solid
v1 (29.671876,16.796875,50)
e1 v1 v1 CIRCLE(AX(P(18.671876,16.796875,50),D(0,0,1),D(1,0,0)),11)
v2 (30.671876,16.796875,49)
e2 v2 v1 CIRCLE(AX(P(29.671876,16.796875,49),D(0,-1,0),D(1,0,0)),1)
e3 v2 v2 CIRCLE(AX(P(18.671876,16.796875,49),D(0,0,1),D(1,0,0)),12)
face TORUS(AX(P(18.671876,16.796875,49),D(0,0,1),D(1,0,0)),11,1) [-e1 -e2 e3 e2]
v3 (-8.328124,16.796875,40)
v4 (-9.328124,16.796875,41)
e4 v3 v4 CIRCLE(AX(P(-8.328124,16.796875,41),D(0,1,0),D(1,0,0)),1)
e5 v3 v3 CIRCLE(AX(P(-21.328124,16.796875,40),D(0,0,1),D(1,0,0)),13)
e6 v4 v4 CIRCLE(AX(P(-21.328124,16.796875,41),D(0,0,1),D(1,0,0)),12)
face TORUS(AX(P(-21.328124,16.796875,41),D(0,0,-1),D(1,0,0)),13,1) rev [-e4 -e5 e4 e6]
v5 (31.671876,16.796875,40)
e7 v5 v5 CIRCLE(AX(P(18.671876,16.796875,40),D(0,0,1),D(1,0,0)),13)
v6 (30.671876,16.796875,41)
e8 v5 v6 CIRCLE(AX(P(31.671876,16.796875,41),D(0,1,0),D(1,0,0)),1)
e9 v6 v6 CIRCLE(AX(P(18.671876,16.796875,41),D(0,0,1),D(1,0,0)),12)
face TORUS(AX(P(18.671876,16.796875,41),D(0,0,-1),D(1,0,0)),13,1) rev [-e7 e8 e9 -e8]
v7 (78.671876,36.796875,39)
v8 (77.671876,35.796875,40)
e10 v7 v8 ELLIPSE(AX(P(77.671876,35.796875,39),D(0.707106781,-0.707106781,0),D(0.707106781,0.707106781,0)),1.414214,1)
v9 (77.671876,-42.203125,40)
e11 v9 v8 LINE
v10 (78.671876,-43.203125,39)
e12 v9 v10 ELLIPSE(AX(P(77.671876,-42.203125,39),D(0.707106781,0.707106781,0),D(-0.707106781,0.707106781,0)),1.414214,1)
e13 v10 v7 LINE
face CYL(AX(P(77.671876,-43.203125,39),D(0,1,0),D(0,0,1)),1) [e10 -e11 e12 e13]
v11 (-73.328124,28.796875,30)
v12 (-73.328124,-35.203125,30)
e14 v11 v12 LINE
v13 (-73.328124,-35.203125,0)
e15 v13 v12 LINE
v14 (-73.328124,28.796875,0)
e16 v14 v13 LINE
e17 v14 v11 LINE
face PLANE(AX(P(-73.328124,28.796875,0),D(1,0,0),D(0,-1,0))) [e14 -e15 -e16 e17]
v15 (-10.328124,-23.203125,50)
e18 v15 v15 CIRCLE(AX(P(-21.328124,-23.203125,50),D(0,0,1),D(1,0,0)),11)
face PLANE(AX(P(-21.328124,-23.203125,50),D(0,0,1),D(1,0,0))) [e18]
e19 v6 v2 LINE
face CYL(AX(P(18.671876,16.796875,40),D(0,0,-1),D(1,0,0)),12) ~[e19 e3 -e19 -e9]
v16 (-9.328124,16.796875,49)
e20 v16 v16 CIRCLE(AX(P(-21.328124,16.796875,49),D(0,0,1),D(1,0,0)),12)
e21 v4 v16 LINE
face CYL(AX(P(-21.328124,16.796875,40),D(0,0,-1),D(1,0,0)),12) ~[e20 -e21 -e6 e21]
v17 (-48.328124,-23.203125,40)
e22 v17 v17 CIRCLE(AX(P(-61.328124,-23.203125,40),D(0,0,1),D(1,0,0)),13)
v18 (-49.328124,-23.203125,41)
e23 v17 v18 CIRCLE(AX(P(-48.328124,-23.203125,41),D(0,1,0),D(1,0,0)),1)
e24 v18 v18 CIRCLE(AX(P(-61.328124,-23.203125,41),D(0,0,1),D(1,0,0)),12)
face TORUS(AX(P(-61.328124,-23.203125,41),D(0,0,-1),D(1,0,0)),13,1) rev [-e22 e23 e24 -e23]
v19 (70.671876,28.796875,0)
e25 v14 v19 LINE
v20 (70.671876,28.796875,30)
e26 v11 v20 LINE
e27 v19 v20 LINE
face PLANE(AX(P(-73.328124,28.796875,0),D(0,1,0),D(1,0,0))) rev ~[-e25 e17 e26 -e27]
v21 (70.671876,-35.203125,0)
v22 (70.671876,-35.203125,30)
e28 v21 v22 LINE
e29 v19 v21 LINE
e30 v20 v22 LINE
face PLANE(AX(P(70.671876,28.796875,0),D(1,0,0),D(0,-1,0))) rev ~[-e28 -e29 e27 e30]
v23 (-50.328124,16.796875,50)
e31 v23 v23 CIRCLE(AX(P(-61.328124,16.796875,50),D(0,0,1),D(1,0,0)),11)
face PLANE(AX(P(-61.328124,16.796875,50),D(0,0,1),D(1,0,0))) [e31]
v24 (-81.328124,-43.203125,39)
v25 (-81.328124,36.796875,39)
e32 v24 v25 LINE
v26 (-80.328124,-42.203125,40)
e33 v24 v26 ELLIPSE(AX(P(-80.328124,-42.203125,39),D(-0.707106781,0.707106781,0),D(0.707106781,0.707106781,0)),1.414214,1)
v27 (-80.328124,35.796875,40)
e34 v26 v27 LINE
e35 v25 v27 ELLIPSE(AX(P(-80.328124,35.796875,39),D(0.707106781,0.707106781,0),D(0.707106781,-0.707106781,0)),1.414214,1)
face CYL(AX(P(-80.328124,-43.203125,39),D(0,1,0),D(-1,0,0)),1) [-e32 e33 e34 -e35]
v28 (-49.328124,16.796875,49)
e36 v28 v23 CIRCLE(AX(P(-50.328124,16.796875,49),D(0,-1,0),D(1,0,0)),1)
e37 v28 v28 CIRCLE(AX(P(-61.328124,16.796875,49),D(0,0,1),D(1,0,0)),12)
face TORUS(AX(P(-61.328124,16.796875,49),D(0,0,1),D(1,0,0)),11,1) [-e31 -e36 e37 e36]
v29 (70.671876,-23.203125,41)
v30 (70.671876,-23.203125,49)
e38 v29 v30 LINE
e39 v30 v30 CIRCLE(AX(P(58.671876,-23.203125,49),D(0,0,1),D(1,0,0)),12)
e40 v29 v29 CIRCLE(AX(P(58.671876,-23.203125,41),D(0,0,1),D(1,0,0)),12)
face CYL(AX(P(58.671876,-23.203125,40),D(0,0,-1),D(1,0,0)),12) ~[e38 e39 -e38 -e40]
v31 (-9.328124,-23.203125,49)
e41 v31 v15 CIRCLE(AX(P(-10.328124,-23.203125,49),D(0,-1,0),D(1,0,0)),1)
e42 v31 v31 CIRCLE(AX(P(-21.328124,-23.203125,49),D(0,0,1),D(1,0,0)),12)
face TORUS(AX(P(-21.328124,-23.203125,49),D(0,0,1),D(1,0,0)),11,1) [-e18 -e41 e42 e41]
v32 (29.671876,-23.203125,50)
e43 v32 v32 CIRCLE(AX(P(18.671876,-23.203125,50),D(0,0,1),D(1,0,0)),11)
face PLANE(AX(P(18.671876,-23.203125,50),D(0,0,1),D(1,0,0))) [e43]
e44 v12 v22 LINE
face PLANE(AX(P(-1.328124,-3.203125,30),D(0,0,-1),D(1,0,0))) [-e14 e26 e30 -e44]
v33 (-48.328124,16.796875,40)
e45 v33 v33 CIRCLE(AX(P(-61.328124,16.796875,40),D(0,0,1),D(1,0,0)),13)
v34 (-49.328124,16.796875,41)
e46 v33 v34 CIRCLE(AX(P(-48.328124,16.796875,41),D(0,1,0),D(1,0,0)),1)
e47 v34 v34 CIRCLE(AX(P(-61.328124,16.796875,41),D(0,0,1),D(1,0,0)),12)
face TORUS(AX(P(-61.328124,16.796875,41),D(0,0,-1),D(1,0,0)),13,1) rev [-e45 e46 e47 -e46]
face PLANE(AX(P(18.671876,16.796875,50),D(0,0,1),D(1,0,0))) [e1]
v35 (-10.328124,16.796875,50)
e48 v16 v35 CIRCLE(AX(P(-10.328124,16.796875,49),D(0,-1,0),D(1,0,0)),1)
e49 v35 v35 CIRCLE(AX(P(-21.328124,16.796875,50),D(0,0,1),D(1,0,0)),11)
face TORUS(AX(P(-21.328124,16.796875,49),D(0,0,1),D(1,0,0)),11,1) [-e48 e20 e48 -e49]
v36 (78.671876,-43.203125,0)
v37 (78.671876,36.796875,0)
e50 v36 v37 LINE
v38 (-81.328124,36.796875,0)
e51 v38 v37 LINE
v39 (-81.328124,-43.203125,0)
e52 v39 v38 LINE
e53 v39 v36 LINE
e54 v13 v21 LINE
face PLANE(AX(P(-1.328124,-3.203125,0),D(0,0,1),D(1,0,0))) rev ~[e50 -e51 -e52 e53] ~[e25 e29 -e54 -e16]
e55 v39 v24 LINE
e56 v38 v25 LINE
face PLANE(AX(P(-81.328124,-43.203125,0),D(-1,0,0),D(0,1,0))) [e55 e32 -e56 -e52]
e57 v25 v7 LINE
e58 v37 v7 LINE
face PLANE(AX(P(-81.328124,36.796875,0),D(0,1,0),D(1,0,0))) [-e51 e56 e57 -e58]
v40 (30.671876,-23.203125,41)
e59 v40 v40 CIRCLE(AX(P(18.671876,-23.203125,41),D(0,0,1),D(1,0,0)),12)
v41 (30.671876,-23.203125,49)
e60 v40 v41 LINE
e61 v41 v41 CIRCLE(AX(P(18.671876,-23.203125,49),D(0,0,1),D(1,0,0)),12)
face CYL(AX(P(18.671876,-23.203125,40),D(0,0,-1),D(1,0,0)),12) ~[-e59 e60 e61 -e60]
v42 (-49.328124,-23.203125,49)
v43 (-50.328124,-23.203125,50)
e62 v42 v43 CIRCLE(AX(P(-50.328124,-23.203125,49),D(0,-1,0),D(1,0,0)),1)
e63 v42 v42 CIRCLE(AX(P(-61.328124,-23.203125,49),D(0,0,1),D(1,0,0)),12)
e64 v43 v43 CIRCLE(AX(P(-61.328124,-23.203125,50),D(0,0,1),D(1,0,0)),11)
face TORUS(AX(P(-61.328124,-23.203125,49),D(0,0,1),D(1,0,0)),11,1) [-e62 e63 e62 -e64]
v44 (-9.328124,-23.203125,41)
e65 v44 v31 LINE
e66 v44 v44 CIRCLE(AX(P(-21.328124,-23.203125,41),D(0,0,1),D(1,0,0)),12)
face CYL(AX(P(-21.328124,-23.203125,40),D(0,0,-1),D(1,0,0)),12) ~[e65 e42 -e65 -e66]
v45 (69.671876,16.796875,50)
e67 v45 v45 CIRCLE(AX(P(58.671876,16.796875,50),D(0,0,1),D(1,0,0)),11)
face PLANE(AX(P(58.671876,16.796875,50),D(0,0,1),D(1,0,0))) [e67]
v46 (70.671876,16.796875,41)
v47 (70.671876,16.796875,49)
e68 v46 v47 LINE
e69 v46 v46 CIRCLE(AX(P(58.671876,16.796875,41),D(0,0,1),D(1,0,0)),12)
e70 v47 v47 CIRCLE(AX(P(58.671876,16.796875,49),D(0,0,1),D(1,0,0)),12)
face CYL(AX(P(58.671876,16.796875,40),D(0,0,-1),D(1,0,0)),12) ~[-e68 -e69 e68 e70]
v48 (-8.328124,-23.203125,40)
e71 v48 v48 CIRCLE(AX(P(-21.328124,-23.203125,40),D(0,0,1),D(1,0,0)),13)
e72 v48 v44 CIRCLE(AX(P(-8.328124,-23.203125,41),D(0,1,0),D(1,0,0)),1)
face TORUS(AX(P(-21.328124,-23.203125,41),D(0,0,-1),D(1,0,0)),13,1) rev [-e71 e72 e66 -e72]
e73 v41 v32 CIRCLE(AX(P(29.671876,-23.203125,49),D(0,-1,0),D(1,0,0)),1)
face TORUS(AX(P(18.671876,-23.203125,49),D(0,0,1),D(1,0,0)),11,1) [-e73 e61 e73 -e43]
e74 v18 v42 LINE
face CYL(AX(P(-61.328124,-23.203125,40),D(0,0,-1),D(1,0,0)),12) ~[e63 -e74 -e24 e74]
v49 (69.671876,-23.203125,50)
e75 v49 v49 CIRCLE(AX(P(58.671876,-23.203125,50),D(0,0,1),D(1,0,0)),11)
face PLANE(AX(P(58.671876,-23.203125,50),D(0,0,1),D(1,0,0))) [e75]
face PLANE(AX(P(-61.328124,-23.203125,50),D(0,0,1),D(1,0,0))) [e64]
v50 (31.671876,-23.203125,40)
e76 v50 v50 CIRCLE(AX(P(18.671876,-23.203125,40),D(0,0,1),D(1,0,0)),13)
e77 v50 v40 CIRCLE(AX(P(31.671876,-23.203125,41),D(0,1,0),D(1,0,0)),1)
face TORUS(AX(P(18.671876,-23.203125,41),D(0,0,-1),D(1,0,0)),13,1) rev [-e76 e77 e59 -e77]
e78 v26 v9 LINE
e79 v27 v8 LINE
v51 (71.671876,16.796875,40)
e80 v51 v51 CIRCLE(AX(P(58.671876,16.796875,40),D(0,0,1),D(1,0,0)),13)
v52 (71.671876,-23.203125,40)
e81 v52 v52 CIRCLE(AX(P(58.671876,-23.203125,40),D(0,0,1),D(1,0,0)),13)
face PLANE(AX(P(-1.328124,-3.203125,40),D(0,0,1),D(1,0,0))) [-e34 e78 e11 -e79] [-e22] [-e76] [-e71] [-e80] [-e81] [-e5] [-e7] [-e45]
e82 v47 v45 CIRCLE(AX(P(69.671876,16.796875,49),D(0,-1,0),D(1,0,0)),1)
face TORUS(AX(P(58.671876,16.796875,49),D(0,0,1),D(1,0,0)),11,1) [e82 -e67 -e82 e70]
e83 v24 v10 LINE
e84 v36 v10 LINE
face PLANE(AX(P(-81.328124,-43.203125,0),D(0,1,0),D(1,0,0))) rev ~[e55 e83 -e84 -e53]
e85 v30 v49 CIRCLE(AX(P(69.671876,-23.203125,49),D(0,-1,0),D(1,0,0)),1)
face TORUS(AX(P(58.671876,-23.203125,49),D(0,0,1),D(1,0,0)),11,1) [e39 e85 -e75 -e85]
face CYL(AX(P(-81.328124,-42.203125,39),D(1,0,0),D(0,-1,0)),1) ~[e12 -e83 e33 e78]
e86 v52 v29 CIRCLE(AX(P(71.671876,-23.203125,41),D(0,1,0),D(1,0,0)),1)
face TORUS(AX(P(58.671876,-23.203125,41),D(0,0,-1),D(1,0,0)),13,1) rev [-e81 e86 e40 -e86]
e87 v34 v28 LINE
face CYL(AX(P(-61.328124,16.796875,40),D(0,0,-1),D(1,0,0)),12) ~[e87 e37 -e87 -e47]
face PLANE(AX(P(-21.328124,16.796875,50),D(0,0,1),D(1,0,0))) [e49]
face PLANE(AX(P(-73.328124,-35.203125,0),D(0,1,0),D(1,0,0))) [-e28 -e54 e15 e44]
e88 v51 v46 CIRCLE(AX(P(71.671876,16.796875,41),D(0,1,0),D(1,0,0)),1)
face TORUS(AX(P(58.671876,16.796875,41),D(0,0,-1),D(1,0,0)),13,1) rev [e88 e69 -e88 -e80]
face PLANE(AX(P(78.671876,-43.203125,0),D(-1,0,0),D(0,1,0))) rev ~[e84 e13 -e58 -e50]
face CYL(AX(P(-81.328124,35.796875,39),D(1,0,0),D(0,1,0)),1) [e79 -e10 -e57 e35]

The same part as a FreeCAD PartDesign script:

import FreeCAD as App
import Part
import Sketcher

V = App.Vector
Q = App.Units.Quantity


def edges_at(feature, points):
    """Names of the edges that pass closest to the given points."""
    edges = feature.Shape.Edges
    near = lambda p: min(range(len(edges)), key=lambda i: edges[i].distToShape(Part.Vertex(*p))[0])
    return sorted({f"Edge{near(p) + 1}" for p in points})

doc = App.newDocument("Part")
body = doc.addObject("PartDesign::Body", "Body")

# Sketch on XY plane
sketch1 = body.newObject("Sketcher::SketchObject", "Sketch")
sketch1.AttachmentSupport = (doc.getObject("XY_Plane"), [""])
sketch1.MapMode = "FlatFace"
sketch1.addGeometry([
    Part.LineSegment(V(-81, 37, 0), V(-81, -43, 0)),
    Part.LineSegment(V(-81, -43, 0), V(79, -43, 0)),
    Part.LineSegment(V(79, -43, 0), V(79, 37, 0)),
    Part.LineSegment(V(79, 37, 0), V(-81, 37, 0)),
], False)
sketch1.addConstraint([
    Sketcher.Constraint("Coincident", 0, 2, 1, 1),
    Sketcher.Constraint("Coincident", 1, 2, 2, 1),
    Sketcher.Constraint("Coincident", 2, 2, 3, 1),
    Sketcher.Constraint("Coincident", 3, 2, 0, 1),
    Sketcher.Constraint("Vertical", 0),
    Sketcher.Constraint("Horizontal", 1),
    Sketcher.Constraint("Vertical", 2),
    Sketcher.Constraint("Horizontal", 3),
    Sketcher.Constraint("DistanceX", 1, 1, 1, 2, Q("160 mm")),
    Sketcher.Constraint("DistanceY", 0, 2, 0, 1, Q("80 mm")),
    Sketcher.Constraint("DistanceX", 0, 2, -1, 1, Q("81.328124 mm")),
    Sketcher.Constraint("DistanceY", 0, 2, -1, 1, Q("43.203125 mm")),
])
pad1 = body.newObject("PartDesign::Pad", "Pad")
pad1.Profile = sketch1
pad1.Length = 40

# Sketch on XY plane
sketch2 = body.newObject("Sketcher::SketchObject", "Sketch001")
sketch2.AttachmentSupport = (doc.getObject("XY_Plane"), [""])
sketch2.MapMode = "FlatFace"
sketch2.addGeometry([
    Part.LineSegment(V(-73, -35, 0), V(-73, 29, 0)),
    Part.LineSegment(V(-73, 29, 0), V(71, 29, 0)),
    Part.LineSegment(V(71, 29, 0), V(71, -35, 0)),
    Part.LineSegment(V(71, -35, 0), V(-73, -35, 0)),
], False)
sketch2.addConstraint([
    Sketcher.Constraint("Coincident", 0, 2, 1, 1),
    Sketcher.Constraint("Coincident", 1, 2, 2, 1),
    Sketcher.Constraint("Coincident", 2, 2, 3, 1),
    Sketcher.Constraint("Coincident", 3, 2, 0, 1),
    Sketcher.Constraint("Vertical", 0),
    Sketcher.Constraint("Horizontal", 1),
    Sketcher.Constraint("Vertical", 2),
    Sketcher.Constraint("Horizontal", 3),
    Sketcher.Constraint("DistanceX", 1, 1, 1, 2, Q("144 mm")),
    Sketcher.Constraint("DistanceY", 0, 1, 0, 2, Q("64 mm")),
    Sketcher.Constraint("DistanceX", 0, 2, -1, 1, Q("73.328124 mm")),
    Sketcher.Constraint("DistanceY", -1, 1, 0, 2, Q("28.796875 mm")),
])
pocket1 = body.newObject("PartDesign::Pocket", "Pocket")
pocket1.Profile = sketch2
pocket1.Length = 30
pocket1.Reversed = True

# Sketch on XY plane
sketch3 = body.newObject("Sketcher::SketchObject", "Sketch002")
sketch3.AttachmentSupport = (doc.getObject("XY_Plane"), [""])
sketch3.MapMode = "FlatFace"
sketch3.AttachmentOffset = App.Placement(V(0, 0, 40), App.Rotation())
sketch3.addGeometry([
    Part.Circle(V(-61, 17, 0), V(0, 0, 1), 12),  # 0
    Part.Circle(V(-61, -23, 0), V(0, 0, 1), 12),  # 1
    Part.Circle(V(-21, 17, 0), V(0, 0, 1), 12),  # 2
    Part.Circle(V(-21, -23, 0), V(0, 0, 1), 12),  # 3
    Part.Circle(V(19, 17, 0), V(0, 0, 1), 12),  # 4
    Part.Circle(V(19, -23, 0), V(0, 0, 1), 12),  # 5
    Part.Circle(V(59, 17, 0), V(0, 0, 1), 12),  # 6
    Part.Circle(V(59, -23, 0), V(0, 0, 1), 12),  # 7
], False)
sketch3.addConstraint([
    Sketcher.Constraint("Equal", 0, 1),
    Sketcher.Constraint("Equal", 1, 2),
    Sketcher.Constraint("Equal", 2, 3),
    Sketcher.Constraint("Equal", 3, 4),
    Sketcher.Constraint("Equal", 4, 5),
    Sketcher.Constraint("Equal", 5, 6),
    Sketcher.Constraint("Equal", 6, 7),
    Sketcher.Constraint("Horizontal", 0, 3, 2, 3),
    Sketcher.Constraint("Horizontal", 1, 3, 3, 3),
    Sketcher.Constraint("Horizontal", 2, 3, 4, 3),
    Sketcher.Constraint("Horizontal", 3, 3, 5, 3),
    Sketcher.Constraint("Horizontal", 4, 3, 6, 3),
    Sketcher.Constraint("Horizontal", 5, 3, 7, 3),
    Sketcher.Constraint("Vertical", 0, 3, 1, 3),
    Sketcher.Constraint("Vertical", 2, 3, 3, 3),
    Sketcher.Constraint("Vertical", 4, 3, 5, 3),
    Sketcher.Constraint("Vertical", 6, 3, 7, 3),
    Sketcher.Constraint("Diameter", 0, Q("24 mm")),
    Sketcher.Constraint("DistanceY", 1, 3, 0, 3, Q("40 mm")),
    Sketcher.Constraint("DistanceX", 0, 3, 2, 3, Q("40 mm")),
    Sketcher.Constraint("DistanceX", 2, 3, 4, 3, Q("40 mm")),
    Sketcher.Constraint("DistanceX", 4, 3, 6, 3, Q("40 mm")),
    Sketcher.Constraint("DistanceX", 0, 3, -1, 1, Q("61.328124 mm")),
    Sketcher.Constraint("DistanceY", -1, 1, 0, 3, Q("16.796875 mm")),
])
pad2 = body.newObject("PartDesign::Pad", "Pad001")
pad2.Profile = sketch3
pad2.Length = 10
doc.recompute()

fillet = body.newObject("PartDesign::Fillet", "Fillet")
fillet.Base = (pad2, edges_at(pad2, [
    (-73.328, 16.797, 50),
    (-33.328, 16.797, 50),
    (6.672, 16.797, 50),
    (46.672, 16.797, 50),
    (46.672, -23.203, 50),
    (6.672, -23.203, 50),
    (-33.328, -23.203, 50),
    (-73.328, -23.203, 50),
    (-1.328, 36.797, 40),
    (78.672, -3.203, 40),
    (-81.328, -3.203, 40),
    (-1.328, -43.203, 40),
    (-73.328, -23.203, 40),
    (-33.328, -23.203, 40),
    (6.672, -23.203, 40),
    (46.672, -23.203, 40),
    (-73.328, 16.797, 40),
    (-33.328, 16.797, 40),
    (6.672, 16.797, 40),
    (46.672, 16.797, 40),
]))
fillet.Radius = 1

doc.recompute()
